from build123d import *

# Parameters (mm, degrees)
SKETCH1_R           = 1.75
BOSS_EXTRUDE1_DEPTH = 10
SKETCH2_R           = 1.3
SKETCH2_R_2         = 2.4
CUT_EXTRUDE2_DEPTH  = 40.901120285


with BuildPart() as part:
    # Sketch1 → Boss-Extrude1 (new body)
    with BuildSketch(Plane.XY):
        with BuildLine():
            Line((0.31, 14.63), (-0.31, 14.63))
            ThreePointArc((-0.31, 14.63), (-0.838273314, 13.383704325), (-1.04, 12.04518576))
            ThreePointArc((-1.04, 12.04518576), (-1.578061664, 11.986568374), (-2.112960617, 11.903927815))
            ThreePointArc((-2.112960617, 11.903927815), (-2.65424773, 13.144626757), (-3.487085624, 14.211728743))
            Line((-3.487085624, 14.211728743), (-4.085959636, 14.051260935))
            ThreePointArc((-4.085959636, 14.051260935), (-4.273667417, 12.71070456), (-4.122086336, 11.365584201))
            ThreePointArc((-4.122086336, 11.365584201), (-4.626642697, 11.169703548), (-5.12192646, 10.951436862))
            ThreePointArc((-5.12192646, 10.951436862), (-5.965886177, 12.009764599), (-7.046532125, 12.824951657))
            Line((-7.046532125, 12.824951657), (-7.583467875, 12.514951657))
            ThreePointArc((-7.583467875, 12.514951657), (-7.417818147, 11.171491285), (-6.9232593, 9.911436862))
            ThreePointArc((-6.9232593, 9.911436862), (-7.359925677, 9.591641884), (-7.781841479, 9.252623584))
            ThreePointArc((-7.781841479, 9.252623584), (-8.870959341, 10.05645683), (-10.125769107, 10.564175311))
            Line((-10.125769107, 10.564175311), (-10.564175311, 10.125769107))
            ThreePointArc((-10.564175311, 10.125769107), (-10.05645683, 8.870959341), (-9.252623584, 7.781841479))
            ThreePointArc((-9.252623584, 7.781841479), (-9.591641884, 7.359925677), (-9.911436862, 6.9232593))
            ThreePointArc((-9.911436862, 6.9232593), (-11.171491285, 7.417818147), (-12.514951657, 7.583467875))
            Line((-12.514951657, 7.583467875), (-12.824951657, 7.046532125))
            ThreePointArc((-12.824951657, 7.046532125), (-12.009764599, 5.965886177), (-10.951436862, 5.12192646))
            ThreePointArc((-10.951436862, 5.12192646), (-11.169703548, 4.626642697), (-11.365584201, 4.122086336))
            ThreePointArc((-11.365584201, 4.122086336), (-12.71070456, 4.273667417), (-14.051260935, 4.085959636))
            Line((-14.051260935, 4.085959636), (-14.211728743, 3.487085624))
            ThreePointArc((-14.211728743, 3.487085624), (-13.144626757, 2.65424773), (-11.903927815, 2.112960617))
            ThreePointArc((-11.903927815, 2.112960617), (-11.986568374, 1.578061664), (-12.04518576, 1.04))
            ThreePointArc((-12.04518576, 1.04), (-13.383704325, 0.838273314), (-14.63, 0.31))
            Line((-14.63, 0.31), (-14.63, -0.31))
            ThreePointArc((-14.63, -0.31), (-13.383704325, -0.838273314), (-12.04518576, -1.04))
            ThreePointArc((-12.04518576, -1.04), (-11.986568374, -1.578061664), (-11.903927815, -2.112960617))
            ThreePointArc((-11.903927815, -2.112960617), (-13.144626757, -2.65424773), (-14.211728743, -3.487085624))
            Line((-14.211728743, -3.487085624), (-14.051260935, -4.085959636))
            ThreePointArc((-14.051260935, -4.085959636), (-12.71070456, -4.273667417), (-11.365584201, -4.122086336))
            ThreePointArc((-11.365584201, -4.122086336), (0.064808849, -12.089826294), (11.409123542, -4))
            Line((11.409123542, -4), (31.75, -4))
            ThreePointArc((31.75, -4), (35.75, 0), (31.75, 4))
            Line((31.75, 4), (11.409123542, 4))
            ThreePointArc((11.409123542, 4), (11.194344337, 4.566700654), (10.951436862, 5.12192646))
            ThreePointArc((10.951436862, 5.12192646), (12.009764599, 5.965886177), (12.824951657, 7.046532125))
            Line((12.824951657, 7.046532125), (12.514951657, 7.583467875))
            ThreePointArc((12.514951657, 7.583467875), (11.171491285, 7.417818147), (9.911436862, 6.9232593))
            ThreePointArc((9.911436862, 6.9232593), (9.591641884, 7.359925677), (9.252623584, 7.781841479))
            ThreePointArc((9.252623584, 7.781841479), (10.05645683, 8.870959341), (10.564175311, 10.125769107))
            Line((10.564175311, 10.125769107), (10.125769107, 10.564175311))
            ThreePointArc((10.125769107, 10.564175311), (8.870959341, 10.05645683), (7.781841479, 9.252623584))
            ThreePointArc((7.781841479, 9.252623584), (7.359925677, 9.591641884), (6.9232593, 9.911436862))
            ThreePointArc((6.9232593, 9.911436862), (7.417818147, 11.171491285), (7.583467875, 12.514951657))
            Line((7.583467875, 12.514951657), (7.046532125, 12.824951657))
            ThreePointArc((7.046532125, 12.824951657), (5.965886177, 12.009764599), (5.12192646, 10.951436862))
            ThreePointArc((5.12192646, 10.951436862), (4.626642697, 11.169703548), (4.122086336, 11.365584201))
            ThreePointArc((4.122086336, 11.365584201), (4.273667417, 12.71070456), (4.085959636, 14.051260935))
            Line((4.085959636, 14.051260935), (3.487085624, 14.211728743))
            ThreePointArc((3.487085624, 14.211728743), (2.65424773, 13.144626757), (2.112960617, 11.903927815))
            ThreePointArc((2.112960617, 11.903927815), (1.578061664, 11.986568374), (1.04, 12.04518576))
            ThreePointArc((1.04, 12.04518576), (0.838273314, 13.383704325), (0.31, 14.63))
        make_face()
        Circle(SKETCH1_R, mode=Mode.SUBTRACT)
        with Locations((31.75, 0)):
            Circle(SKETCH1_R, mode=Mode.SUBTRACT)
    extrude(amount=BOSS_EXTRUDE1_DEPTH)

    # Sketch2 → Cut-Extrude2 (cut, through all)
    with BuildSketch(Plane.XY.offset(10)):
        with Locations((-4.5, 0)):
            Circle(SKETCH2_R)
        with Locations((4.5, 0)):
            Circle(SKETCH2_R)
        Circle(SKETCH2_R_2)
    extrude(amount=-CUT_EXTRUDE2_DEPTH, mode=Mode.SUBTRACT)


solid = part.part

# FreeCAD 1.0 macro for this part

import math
import FreeCAD as App
import Part
import Sketcher
Q = App.Units.Quantity

doc = App.newDocument("Part")
body = doc.addObject("PartDesign::Body", "Body")

# Sketch on XY plane
sketch1 = body.newObject("Sketcher::SketchObject", "Sketch")
sketch1.AttachmentSupport = (doc.getObject("XY_Plane"), [""])
sketch1.MapMode = "FlatFace"
sketch1.addGeometry([
    Part.LineSegment(App.Vector(0.3, 14.6, 0), App.Vector(-0.3, 14.6, 0)),  # 0
    Part.ArcOfCircle(Part.Circle(App.Vector(4.4, 11.9, 0), App.Vector(0, 0, 1), 5.4), math.radians(150), math.radians(179)),  # 1
    Part.ArcOfCircle(Part.Circle(App.Vector(0, 0, 0), App.Vector(0, 0, 1), 12.1), math.radians(94.93), math.radians(100.07)),  # 2
    Part.ArcOfCircle(Part.Circle(App.Vector(-7.3, 10.4, 0), App.Vector(0, 0, 1), 5.4), math.radians(16), math.radians(45)),  # 3
    Part.LineSegment(App.Vector(-3.5, 14.2, 0), App.Vector(-4.1, 14.1, 0)),  # 4
    Part.ArcOfCircle(Part.Circle(App.Vector(1.1, 12.6, 0), App.Vector(0, 0, 1), 5.4), math.radians(165), math.radians(194)),  # 5
    Part.ArcOfCircle(Part.Circle(App.Vector(0, 0, 0), App.Vector(0, 0, 1), 12.1), math.radians(109.93), math.radians(115.07)),  # 6
    Part.ArcOfCircle(Part.Circle(App.Vector(-9.7, 8.1, 0), App.Vector(0, 0, 1), 5.4), math.radians(31), math.radians(60)),  # 7
    Part.LineSegment(App.Vector(-7, 12.8, 0), App.Vector(-7.6, 12.5, 0)),  # 8
    Part.ArcOfCircle(Part.Circle(App.Vector(-2.2, 12.5, 0), App.Vector(0, 0, 1), 5.4), math.radians(180), math.radians(209)),  # 9
    Part.ArcOfCircle(Part.Circle(App.Vector(0, 0, 0), App.Vector(0, 0, 1), 12.1), math.radians(124.93), math.radians(130.07)),  # 10
    Part.ArcOfCircle(Part.Circle(App.Vector(-11.5, 5.3, 0), App.Vector(0, 0, 1), 5.4), math.radians(46), math.radians(75)),  # 11
    Part.LineSegment(App.Vector(-10.1, 10.6, 0), App.Vector(-10.6, 10.1, 0)),  # 12
    Part.ArcOfCircle(Part.Circle(App.Vector(-5.3, 11.5, 0), App.Vector(0, 0, 1), 5.4), math.radians(-165), math.radians(-136)),  # 13
    Part.ArcOfCircle(Part.Circle(App.Vector(0, 0, 0), App.Vector(0, 0, 1), 12.1), math.radians(139.93), math.radians(145.07)),  # 14
    Part.ArcOfCircle(Part.Circle(App.Vector(-12.5, 2.2, 0), App.Vector(0, 0, 1), 5.4), math.radians(61), math.radians(90)),  # 15
    Part.LineSegment(App.Vector(-12.5, 7.6, 0), App.Vector(-12.8, 7, 0)),  # 16
    Part.ArcOfCircle(Part.Circle(App.Vector(-8.1, 9.7, 0), App.Vector(0, 0, 1), 5.4), math.radians(-150), math.radians(-121)),  # 17
    Part.ArcOfCircle(Part.Circle(App.Vector(0, 0, 0), App.Vector(0, 0, 1), 12.1), math.radians(154.93), math.radians(160.07)),  # 18
    Part.ArcOfCircle(Part.Circle(App.Vector(-12.6, -1.1, 0), App.Vector(0, 0, 1), 5.4), math.radians(76), math.radians(105)),  # 19
    Part.LineSegment(App.Vector(-14.1, 4.1, 0), App.Vector(-14.2, 3.5, 0)),  # 20
    Part.ArcOfCircle(Part.Circle(App.Vector(-10.4, 7.3, 0), App.Vector(0, 0, 1), 5.4), math.radians(-135), math.radians(-106)),  # 21
    Part.ArcOfCircle(Part.Circle(App.Vector(0, 0, 0), App.Vector(0, 0, 1), 12.1), math.radians(169.93), math.radians(175.07)),  # 22
    Part.ArcOfCircle(Part.Circle(App.Vector(-11.9, -4.4, 0), App.Vector(0, 0, 1), 5.4), math.radians(91), math.radians(120)),  # 23
    Part.LineSegment(App.Vector(-14.6, 0.3, 0), App.Vector(-14.6, -0.3, 0)),  # 24
    Part.ArcOfCircle(Part.Circle(App.Vector(-11.9, 4.4, 0), App.Vector(0, 0, 1), 5.4), math.radians(-120), math.radians(-91)),  # 25
    Part.ArcOfCircle(Part.Circle(App.Vector(0, 0, 0), App.Vector(0, 0, 1), 12.1), math.radians(-175.07), math.radians(-169.93)),  # 26
    Part.ArcOfCircle(Part.Circle(App.Vector(-10.4, -7.3, 0), App.Vector(0, 0, 1), 5.4), math.radians(106), math.radians(135)),  # 27
    Part.LineSegment(App.Vector(-14.2, -3.5, 0), App.Vector(-14.1, -4.1, 0)),  # 28
    Part.ArcOfCircle(Part.Circle(App.Vector(-12.6, 1.1, 0), App.Vector(0, 0, 1), 5.4), math.radians(-105), math.radians(-76)),  # 29
    Part.ArcOfCircle(Part.Circle(App.Vector(0, 0, 0), App.Vector(0, 0, 1), 12.1), math.radians(-160), math.radians(-19)),  # 30
    Part.LineSegment(App.Vector(11.4, -4, 0), App.Vector(31.8, -4, 0)),  # 31
    Part.ArcOfCircle(Part.Circle(App.Vector(31.8, 0, 0), App.Vector(0, 0, 1), 4), math.radians(-90), math.radians(90)),  # 32
    Part.LineSegment(App.Vector(31.8, 4, 0), App.Vector(11.4, 4, 0)),  # 33
    Part.ArcOfCircle(Part.Circle(App.Vector(0, 0, 0), App.Vector(0, 0, 1), 12.1), math.radians(19.32), math.radians(25.07)),  # 34
    Part.ArcOfCircle(Part.Circle(App.Vector(8.1, 9.7, 0), App.Vector(0, 0, 1), 5.4), math.radians(-59), math.radians(-30)),  # 35
    Part.LineSegment(App.Vector(12.8, 7, 0), App.Vector(12.5, 7.6, 0)),  # 36
    Part.ArcOfCircle(Part.Circle(App.Vector(12.5, 2.2, 0), App.Vector(0, 0, 1), 5.4), math.radians(90), math.radians(119)),  # 37
    Part.ArcOfCircle(Part.Circle(App.Vector(0, 0, 0), App.Vector(0, 0, 1), 12.1), math.radians(34.93), math.radians(40.07)),  # 38
    Part.ArcOfCircle(Part.Circle(App.Vector(5.3, 11.5, 0), App.Vector(0, 0, 1), 5.4), math.radians(-44), math.radians(-15)),  # 39
    Part.LineSegment(App.Vector(10.6, 10.1, 0), App.Vector(10.1, 10.6, 0)),  # 40
    Part.ArcOfCircle(Part.Circle(App.Vector(11.5, 5.3, 0), App.Vector(0, 0, 1), 5.4), math.radians(105), math.radians(134)),  # 41
    Part.ArcOfCircle(Part.Circle(App.Vector(0, 0, 0), App.Vector(0, 0, 1), 12.1), math.radians(49.93), math.radians(55.07)),  # 42
    Part.ArcOfCircle(Part.Circle(App.Vector(2.2, 12.5, 0), App.Vector(0, 0, 1), 5.4), math.radians(-29), math.radians(0)),  # 43
    Part.LineSegment(App.Vector(7.6, 12.5, 0), App.Vector(7, 12.8, 0)),  # 44
    Part.ArcOfCircle(Part.Circle(App.Vector(9.7, 8.1, 0), App.Vector(0, 0, 1), 5.4), math.radians(120), math.radians(149)),  # 45
    Part.ArcOfCircle(Part.Circle(App.Vector(0, 0, 0), App.Vector(0, 0, 1), 12.1), math.radians(64.93), math.radians(70.07)),  # 46
    Part.ArcOfCircle(Part.Circle(App.Vector(-1.1, 12.6, 0), App.Vector(0, 0, 1), 5.4), math.radians(-14), math.radians(15)),  # 47
    Part.LineSegment(App.Vector(4.1, 14.1, 0), App.Vector(3.5, 14.2, 0)),  # 48
    Part.ArcOfCircle(Part.Circle(App.Vector(7.3, 10.4, 0), App.Vector(0, 0, 1), 5.4), math.radians(135), math.radians(164)),  # 49
    Part.ArcOfCircle(Part.Circle(App.Vector(0, 0, 0), App.Vector(0, 0, 1), 12.1), math.radians(79.93), math.radians(85.07)),  # 50
    Part.ArcOfCircle(Part.Circle(App.Vector(-4.4, 11.9, 0), App.Vector(0, 0, 1), 5.4), math.radians(1), math.radians(30)),  # 51
    Part.Circle(App.Vector(0, 0, 0), App.Vector(0, 0, 1), 1.8),  # 52
    Part.Circle(App.Vector(31.8, 0, 0), App.Vector(0, 0, 1), 1.8),  # 53
], False)
sketch1.addConstraint([
    Sketcher.Constraint("Coincident", 0, 2, 1, 1),
    Sketcher.Constraint("Coincident", 1, 2, 2, 1),
    Sketcher.Constraint("Coincident", 2, 2, 3, 1),
    Sketcher.Constraint("Coincident", 3, 2, 4, 1),
    Sketcher.Constraint("Coincident", 4, 2, 5, 1),
    Sketcher.Constraint("Coincident", 5, 2, 6, 1),
    Sketcher.Constraint("Coincident", 6, 2, 7, 1),
    Sketcher.Constraint("Coincident", 7, 2, 8, 1),
    Sketcher.Constraint("Coincident", 8, 2, 9, 1),
    Sketcher.Constraint("Coincident", 9, 2, 10, 1),
    Sketcher.Constraint("Coincident", 10, 2, 11, 1),
    Sketcher.Constraint("Coincident", 11, 2, 12, 1),
    Sketcher.Constraint("Coincident", 12, 2, 13, 1),
    Sketcher.Constraint("Coincident", 13, 2, 14, 1),
    Sketcher.Constraint("Coincident", 14, 2, 15, 1),
    Sketcher.Constraint("Coincident", 15, 2, 16, 1),
    Sketcher.Constraint("Coincident", 16, 2, 17, 1),
    Sketcher.Constraint("Coincident", 17, 2, 18, 1),
    Sketcher.Constraint("Coincident", 18, 2, 19, 1),
    Sketcher.Constraint("Coincident", 19, 2, 20, 1),
    Sketcher.Constraint("Coincident", 20, 2, 21, 1),
    Sketcher.Constraint("Coincident", 21, 2, 22, 1),
    Sketcher.Constraint("Coincident", 22, 2, 23, 1),
    Sketcher.Constraint("Coincident", 23, 2, 24, 1),
    Sketcher.Constraint("Coincident", 24, 2, 25, 1),
    Sketcher.Constraint("Coincident", 25, 2, 26, 1),
    Sketcher.Constraint("Coincident", 26, 2, 27, 1),
    Sketcher.Constraint("Coincident", 27, 2, 28, 1),
    Sketcher.Constraint("Coincident", 28, 2, 29, 1),
    Sketcher.Constraint("Coincident", 29, 2, 30, 1),
    Sketcher.Constraint("Coincident", 30, 2, 31, 1),
    Sketcher.Constraint("Tangent", 31, 2, 32, 1),
    Sketcher.Constraint("Tangent", 32, 2, 33, 1),
    Sketcher.Constraint("Coincident", 33, 2, 34, 1),
    Sketcher.Constraint("Coincident", 34, 2, 35, 1),
    Sketcher.Constraint("Coincident", 35, 2, 36, 1),
    Sketcher.Constraint("Coincident", 36, 2, 37, 1),
    Sketcher.Constraint("Coincident", 37, 2, 38, 1),
    Sketcher.Constraint("Coincident", 38, 2, 39, 1),
    Sketcher.Constraint("Coincident", 39, 2, 40, 1),
    Sketcher.Constraint("Coincident", 40, 2, 41, 1),
    Sketcher.Constraint("Coincident", 41, 2, 42, 1),
    Sketcher.Constraint("Coincident", 42, 2, 43, 1),
    Sketcher.Constraint("Coincident", 43, 2, 44, 1),
    Sketcher.Constraint("Coincident", 44, 2, 45, 1),
    Sketcher.Constraint("Coincident", 45, 2, 46, 1),
    Sketcher.Constraint("Coincident", 46, 2, 47, 1),
    Sketcher.Constraint("Coincident", 47, 2, 48, 1),
    Sketcher.Constraint("Coincident", 48, 2, 49, 1),
    Sketcher.Constraint("Coincident", 49, 2, 50, 1),
    Sketcher.Constraint("Coincident", 50, 2, 51, 1),
    Sketcher.Constraint("Coincident", 51, 2, 0, 1),
    Sketcher.Constraint("Horizontal", 0),
    Sketcher.Constraint("Vertical", 24),
    Sketcher.Constraint("Horizontal", 31),
    Sketcher.Constraint("Horizontal", 33),
    Sketcher.Constraint("Coincident", 2, 3, -1, 1),
    Sketcher.Constraint("Coincident", 6, 3, -1, 1),
    Sketcher.Constraint("Coincident", 10, 3, -1, 1),
    Sketcher.Constraint("Coincident", 14, 3, -1, 1),
    Sketcher.Constraint("Coincident", 18, 3, -1, 1),
    Sketcher.Constraint("Coincident", 22, 3, -1, 1),
    Sketcher.Constraint("Coincident", 26, 3, -1, 1),
    Sketcher.Constraint("Coincident", 30, 3, -1, 1),
    Sketcher.Constraint("Coincident", 34, 3, -1, 1),
    Sketcher.Constraint("Coincident", 38, 3, -1, 1),
    Sketcher.Constraint("Coincident", 42, 3, -1, 1),
    Sketcher.Constraint("Coincident", 46, 3, -1, 1),
    Sketcher.Constraint("Coincident", 50, 3, -1, 1),
    Sketcher.Constraint("Coincident", 52, 3, -1, 1),
    Sketcher.Constraint("Coincident", 53, 3, 32, 3),
    Sketcher.Constraint("Equal", 1, 3),
    Sketcher.Constraint("Equal", 3, 5),
    Sketcher.Constraint("Equal", 2, 6),
    Sketcher.Constraint("Equal", 5, 7),
    Sketcher.Constraint("Equal", 7, 9),
    Sketcher.Constraint("Equal", 6, 10),
    Sketcher.Constraint("Equal", 9, 11),
    Sketcher.Constraint("Equal", 11, 13),
    Sketcher.Constraint("Equal", 10, 14),
    Sketcher.Constraint("Equal", 13, 15),
    Sketcher.Constraint("Equal", 15, 17),
    Sketcher.Constraint("Equal", 14, 18),
    Sketcher.Constraint("Equal", 17, 19),
    Sketcher.Constraint("Equal", 19, 21),
    Sketcher.Constraint("Equal", 18, 22),
    Sketcher.Constraint("Equal", 21, 23),
    Sketcher.Constraint("Equal", 23, 25),
    Sketcher.Constraint("Equal", 22, 26),
    Sketcher.Constraint("Equal", 25, 27),
    Sketcher.Constraint("Equal", 27, 29),
    Sketcher.Constraint("Equal", 26, 30),
    Sketcher.Constraint("Equal", 30, 34),
    Sketcher.Constraint("Equal", 29, 35),
    Sketcher.Constraint("Equal", 35, 37),
    Sketcher.Constraint("Equal", 34, 38),
    Sketcher.Constraint("Equal", 37, 39),
    Sketcher.Constraint("Equal", 39, 41),
    Sketcher.Constraint("Equal", 38, 42),
    Sketcher.Constraint("Equal", 41, 43),
    Sketcher.Constraint("Equal", 43, 45),
    Sketcher.Constraint("Equal", 42, 46),
    Sketcher.Constraint("Equal", 45, 47),
    Sketcher.Constraint("Equal", 47, 49),
    Sketcher.Constraint("Equal", 46, 50),
    Sketcher.Constraint("Equal", 49, 51),
    Sketcher.Constraint("Equal", 52, 53),
    Sketcher.Constraint("Symmetric", 17, 3, 35, 3, -2),
    Sketcher.Constraint("Symmetric", 15, 3, 37, 3, -2),
    Sketcher.Constraint("Symmetric", 13, 3, 39, 3, -2),
    Sketcher.Constraint("Symmetric", 11, 3, 41, 3, -2),
    Sketcher.Constraint("Symmetric", 9, 3, 43, 3, -2),
    Sketcher.Constraint("Symmetric", 7, 3, 45, 3, -2),
    Sketcher.Constraint("Symmetric", 5, 3, 47, 3, -2),
    Sketcher.Constraint("Symmetric", 3, 3, 49, 3, -2),
    Sketcher.Constraint("Symmetric", 1, 3, 51, 3, -2),
    Sketcher.Constraint("Symmetric", 23, 3, 25, 3, -1),
    Sketcher.Constraint("Symmetric", 21, 3, 27, 3, -1),
    Sketcher.Constraint("Symmetric", 19, 3, 29, 3, -1),
    Sketcher.Constraint("PointOnObject", 32, 3, -1),
    Sketcher.Constraint("Perpendicular", 4, 28),
    Sketcher.Constraint("Perpendicular", 8, 36),
    Sketcher.Constraint("Perpendicular", 12, 40),
    Sketcher.Constraint("Perpendicular", 16, 44),
    Sketcher.Constraint("Perpendicular", 20, 48),
    Sketcher.Constraint("Horizontal", 16, 2, 35, 2),
    Sketcher.Constraint("Horizontal", 12, 2, 39, 2),
    Sketcher.Constraint("Horizontal", 11, 2, 40, 2),
    Sketcher.Constraint("Horizontal", 8, 2, 43, 2),
    Sketcher.Constraint("Horizontal", 7, 2, 44, 2),
    Sketcher.Constraint("Horizontal", 4, 2, 47, 2),
    Sketcher.Constraint("Horizontal", 3, 2, 48, 2),
    Sketcher.Constraint("Vertical", 20, 2, 27, 2),
    Sketcher.Constraint("Equal", 0, 24),
    Sketcher.Constraint("Equal", 4, 8),
    Sketcher.Constraint("Equal", 8, 12),
    Sketcher.Constraint("Equal", 12, 16),
    Sketcher.Constraint("Equal", 16, 20),
    Sketcher.Constraint("Radius", 32, 4.0),
    Sketcher.Constraint("Diameter", 52, 3.5),
    Sketcher.Constraint("Radius", 1, 5.4),
    Sketcher.Constraint("Angle", 4, Q("-165 deg")),
    Sketcher.Constraint("Angle", 8, Q("-150 deg")),
    Sketcher.Constraint("Radius", 2, 12.09),
    Sketcher.Constraint("DistanceX", 0, 2, 0, 1, 0.62),
    Sketcher.Constraint("Distance", 4, 0.62),
    Sketcher.Constraint("DistanceX", -1, 1, 32, 3, 31.75),
    Sketcher.Constraint("DistanceY", -1, 1, 0, 2, 14.63),
    Sketcher.Constraint("DistanceX", 1, 2, -1, 1, 1.04),
    Sketcher.Constraint("DistanceY", -1, 1, 22, 2, 1.04),
    Sketcher.Constraint("DistanceX", 23, 2, -1, 1, 14.63),
    Sketcher.Constraint("DistanceY", -1, 1, 3, 3, 10.38197),
    Sketcher.Constraint("DistanceX", 7, 3, -1, 1, 9.732559),
    Sketcher.Constraint("DistanceX", 9, 3, -1, 1, 2.183492),
    Sketcher.Constraint("DistanceY", -1, 1, 9, 3, 12.49883),
    Sketcher.Constraint("DistanceX", 15, 3, -1, 1, 12.49883),
    Sketcher.Constraint("DistanceY", -1, 1, 15, 3, 2.183492),
    Sketcher.Constraint("DistanceY", -1, 1, 17, 3, 9.732559),
    Sketcher.Constraint("DistanceX", 21, 3, -1, 1, 10.38197),
    Sketcher.Constraint("DistanceX", 2, 2, -1, 1, 2.112961),
    Sketcher.Constraint("DistanceY", -1, 1, 3, 2, 14.211729),
    Sketcher.Constraint("DistanceY", -1, 1, 7, 2, 12.824952),
    Sketcher.Constraint("DistanceX", 10, 2, -1, 1, 7.781841),
    Sketcher.Constraint("DistanceX", 11, 2, -1, 1, 10.125769),
    Sketcher.Constraint("DistanceY", -1, 1, 12, 2, 10.125769),
    Sketcher.Constraint("DistanceY", -1, 1, 13, 2, 7.781841),
    Sketcher.Constraint("DistanceX", 15, 2, -1, 1, 12.514952),
    Sketcher.Constraint("DistanceX", 19, 2, -1, 1, 14.051261),
    Sketcher.Constraint("DistanceY", -1, 1, 19, 2, 4.08596),
    Sketcher.Constraint("DistanceX", -1, 1, 5, 3, 1.125844),
    Sketcher.Constraint("DistanceX", 19, 3, -1, 1, 12.638072),
])
pad1 = body.newObject("PartDesign::Pad", "Pad")
pad1.Profile = sketch1
pad1.Length = 10

# Sketch on XY plane
sketch2 = body.newObject("Sketcher::SketchObject", "Sketch001")
sketch2.AttachmentSupport = (doc.getObject("XY_Plane"), [""])
sketch2.MapMode = "FlatFace"
sketch2.AttachmentOffset = App.Placement(App.Vector(0, 0, 10), App.Rotation())
sketch2.addGeometry([
    Part.Circle(App.Vector(-4.5, 0, 0), App.Vector(0, 0, 1), 1.3),
    Part.Circle(App.Vector(4.5, 0, 0), App.Vector(0, 0, 1), 1.3),
    Part.Circle(App.Vector(0, 0, 0), App.Vector(0, 0, 1), 2.4),
], False)
sketch2.addConstraint([
    Sketcher.Constraint("Coincident", 2, 3, -1, 1),
    Sketcher.Constraint("Equal", 0, 1),
    Sketcher.Constraint("Symmetric", 0, 3, 1, 3, -1, 1),
    Sketcher.Constraint("PointOnObject", 0, 3, -1),
    Sketcher.Constraint("Diameter", 0, 2.6),
    Sketcher.Constraint("Diameter", 2, 4.8),
    Sketcher.Constraint("DistanceX", 0, 3, 1, 3, 9.0),
])
pocket1 = body.newObject("PartDesign::Pocket", "Pocket")
pocket1.Profile = sketch2
pocket1.Type = "ThroughAll"

doc.recompute()
